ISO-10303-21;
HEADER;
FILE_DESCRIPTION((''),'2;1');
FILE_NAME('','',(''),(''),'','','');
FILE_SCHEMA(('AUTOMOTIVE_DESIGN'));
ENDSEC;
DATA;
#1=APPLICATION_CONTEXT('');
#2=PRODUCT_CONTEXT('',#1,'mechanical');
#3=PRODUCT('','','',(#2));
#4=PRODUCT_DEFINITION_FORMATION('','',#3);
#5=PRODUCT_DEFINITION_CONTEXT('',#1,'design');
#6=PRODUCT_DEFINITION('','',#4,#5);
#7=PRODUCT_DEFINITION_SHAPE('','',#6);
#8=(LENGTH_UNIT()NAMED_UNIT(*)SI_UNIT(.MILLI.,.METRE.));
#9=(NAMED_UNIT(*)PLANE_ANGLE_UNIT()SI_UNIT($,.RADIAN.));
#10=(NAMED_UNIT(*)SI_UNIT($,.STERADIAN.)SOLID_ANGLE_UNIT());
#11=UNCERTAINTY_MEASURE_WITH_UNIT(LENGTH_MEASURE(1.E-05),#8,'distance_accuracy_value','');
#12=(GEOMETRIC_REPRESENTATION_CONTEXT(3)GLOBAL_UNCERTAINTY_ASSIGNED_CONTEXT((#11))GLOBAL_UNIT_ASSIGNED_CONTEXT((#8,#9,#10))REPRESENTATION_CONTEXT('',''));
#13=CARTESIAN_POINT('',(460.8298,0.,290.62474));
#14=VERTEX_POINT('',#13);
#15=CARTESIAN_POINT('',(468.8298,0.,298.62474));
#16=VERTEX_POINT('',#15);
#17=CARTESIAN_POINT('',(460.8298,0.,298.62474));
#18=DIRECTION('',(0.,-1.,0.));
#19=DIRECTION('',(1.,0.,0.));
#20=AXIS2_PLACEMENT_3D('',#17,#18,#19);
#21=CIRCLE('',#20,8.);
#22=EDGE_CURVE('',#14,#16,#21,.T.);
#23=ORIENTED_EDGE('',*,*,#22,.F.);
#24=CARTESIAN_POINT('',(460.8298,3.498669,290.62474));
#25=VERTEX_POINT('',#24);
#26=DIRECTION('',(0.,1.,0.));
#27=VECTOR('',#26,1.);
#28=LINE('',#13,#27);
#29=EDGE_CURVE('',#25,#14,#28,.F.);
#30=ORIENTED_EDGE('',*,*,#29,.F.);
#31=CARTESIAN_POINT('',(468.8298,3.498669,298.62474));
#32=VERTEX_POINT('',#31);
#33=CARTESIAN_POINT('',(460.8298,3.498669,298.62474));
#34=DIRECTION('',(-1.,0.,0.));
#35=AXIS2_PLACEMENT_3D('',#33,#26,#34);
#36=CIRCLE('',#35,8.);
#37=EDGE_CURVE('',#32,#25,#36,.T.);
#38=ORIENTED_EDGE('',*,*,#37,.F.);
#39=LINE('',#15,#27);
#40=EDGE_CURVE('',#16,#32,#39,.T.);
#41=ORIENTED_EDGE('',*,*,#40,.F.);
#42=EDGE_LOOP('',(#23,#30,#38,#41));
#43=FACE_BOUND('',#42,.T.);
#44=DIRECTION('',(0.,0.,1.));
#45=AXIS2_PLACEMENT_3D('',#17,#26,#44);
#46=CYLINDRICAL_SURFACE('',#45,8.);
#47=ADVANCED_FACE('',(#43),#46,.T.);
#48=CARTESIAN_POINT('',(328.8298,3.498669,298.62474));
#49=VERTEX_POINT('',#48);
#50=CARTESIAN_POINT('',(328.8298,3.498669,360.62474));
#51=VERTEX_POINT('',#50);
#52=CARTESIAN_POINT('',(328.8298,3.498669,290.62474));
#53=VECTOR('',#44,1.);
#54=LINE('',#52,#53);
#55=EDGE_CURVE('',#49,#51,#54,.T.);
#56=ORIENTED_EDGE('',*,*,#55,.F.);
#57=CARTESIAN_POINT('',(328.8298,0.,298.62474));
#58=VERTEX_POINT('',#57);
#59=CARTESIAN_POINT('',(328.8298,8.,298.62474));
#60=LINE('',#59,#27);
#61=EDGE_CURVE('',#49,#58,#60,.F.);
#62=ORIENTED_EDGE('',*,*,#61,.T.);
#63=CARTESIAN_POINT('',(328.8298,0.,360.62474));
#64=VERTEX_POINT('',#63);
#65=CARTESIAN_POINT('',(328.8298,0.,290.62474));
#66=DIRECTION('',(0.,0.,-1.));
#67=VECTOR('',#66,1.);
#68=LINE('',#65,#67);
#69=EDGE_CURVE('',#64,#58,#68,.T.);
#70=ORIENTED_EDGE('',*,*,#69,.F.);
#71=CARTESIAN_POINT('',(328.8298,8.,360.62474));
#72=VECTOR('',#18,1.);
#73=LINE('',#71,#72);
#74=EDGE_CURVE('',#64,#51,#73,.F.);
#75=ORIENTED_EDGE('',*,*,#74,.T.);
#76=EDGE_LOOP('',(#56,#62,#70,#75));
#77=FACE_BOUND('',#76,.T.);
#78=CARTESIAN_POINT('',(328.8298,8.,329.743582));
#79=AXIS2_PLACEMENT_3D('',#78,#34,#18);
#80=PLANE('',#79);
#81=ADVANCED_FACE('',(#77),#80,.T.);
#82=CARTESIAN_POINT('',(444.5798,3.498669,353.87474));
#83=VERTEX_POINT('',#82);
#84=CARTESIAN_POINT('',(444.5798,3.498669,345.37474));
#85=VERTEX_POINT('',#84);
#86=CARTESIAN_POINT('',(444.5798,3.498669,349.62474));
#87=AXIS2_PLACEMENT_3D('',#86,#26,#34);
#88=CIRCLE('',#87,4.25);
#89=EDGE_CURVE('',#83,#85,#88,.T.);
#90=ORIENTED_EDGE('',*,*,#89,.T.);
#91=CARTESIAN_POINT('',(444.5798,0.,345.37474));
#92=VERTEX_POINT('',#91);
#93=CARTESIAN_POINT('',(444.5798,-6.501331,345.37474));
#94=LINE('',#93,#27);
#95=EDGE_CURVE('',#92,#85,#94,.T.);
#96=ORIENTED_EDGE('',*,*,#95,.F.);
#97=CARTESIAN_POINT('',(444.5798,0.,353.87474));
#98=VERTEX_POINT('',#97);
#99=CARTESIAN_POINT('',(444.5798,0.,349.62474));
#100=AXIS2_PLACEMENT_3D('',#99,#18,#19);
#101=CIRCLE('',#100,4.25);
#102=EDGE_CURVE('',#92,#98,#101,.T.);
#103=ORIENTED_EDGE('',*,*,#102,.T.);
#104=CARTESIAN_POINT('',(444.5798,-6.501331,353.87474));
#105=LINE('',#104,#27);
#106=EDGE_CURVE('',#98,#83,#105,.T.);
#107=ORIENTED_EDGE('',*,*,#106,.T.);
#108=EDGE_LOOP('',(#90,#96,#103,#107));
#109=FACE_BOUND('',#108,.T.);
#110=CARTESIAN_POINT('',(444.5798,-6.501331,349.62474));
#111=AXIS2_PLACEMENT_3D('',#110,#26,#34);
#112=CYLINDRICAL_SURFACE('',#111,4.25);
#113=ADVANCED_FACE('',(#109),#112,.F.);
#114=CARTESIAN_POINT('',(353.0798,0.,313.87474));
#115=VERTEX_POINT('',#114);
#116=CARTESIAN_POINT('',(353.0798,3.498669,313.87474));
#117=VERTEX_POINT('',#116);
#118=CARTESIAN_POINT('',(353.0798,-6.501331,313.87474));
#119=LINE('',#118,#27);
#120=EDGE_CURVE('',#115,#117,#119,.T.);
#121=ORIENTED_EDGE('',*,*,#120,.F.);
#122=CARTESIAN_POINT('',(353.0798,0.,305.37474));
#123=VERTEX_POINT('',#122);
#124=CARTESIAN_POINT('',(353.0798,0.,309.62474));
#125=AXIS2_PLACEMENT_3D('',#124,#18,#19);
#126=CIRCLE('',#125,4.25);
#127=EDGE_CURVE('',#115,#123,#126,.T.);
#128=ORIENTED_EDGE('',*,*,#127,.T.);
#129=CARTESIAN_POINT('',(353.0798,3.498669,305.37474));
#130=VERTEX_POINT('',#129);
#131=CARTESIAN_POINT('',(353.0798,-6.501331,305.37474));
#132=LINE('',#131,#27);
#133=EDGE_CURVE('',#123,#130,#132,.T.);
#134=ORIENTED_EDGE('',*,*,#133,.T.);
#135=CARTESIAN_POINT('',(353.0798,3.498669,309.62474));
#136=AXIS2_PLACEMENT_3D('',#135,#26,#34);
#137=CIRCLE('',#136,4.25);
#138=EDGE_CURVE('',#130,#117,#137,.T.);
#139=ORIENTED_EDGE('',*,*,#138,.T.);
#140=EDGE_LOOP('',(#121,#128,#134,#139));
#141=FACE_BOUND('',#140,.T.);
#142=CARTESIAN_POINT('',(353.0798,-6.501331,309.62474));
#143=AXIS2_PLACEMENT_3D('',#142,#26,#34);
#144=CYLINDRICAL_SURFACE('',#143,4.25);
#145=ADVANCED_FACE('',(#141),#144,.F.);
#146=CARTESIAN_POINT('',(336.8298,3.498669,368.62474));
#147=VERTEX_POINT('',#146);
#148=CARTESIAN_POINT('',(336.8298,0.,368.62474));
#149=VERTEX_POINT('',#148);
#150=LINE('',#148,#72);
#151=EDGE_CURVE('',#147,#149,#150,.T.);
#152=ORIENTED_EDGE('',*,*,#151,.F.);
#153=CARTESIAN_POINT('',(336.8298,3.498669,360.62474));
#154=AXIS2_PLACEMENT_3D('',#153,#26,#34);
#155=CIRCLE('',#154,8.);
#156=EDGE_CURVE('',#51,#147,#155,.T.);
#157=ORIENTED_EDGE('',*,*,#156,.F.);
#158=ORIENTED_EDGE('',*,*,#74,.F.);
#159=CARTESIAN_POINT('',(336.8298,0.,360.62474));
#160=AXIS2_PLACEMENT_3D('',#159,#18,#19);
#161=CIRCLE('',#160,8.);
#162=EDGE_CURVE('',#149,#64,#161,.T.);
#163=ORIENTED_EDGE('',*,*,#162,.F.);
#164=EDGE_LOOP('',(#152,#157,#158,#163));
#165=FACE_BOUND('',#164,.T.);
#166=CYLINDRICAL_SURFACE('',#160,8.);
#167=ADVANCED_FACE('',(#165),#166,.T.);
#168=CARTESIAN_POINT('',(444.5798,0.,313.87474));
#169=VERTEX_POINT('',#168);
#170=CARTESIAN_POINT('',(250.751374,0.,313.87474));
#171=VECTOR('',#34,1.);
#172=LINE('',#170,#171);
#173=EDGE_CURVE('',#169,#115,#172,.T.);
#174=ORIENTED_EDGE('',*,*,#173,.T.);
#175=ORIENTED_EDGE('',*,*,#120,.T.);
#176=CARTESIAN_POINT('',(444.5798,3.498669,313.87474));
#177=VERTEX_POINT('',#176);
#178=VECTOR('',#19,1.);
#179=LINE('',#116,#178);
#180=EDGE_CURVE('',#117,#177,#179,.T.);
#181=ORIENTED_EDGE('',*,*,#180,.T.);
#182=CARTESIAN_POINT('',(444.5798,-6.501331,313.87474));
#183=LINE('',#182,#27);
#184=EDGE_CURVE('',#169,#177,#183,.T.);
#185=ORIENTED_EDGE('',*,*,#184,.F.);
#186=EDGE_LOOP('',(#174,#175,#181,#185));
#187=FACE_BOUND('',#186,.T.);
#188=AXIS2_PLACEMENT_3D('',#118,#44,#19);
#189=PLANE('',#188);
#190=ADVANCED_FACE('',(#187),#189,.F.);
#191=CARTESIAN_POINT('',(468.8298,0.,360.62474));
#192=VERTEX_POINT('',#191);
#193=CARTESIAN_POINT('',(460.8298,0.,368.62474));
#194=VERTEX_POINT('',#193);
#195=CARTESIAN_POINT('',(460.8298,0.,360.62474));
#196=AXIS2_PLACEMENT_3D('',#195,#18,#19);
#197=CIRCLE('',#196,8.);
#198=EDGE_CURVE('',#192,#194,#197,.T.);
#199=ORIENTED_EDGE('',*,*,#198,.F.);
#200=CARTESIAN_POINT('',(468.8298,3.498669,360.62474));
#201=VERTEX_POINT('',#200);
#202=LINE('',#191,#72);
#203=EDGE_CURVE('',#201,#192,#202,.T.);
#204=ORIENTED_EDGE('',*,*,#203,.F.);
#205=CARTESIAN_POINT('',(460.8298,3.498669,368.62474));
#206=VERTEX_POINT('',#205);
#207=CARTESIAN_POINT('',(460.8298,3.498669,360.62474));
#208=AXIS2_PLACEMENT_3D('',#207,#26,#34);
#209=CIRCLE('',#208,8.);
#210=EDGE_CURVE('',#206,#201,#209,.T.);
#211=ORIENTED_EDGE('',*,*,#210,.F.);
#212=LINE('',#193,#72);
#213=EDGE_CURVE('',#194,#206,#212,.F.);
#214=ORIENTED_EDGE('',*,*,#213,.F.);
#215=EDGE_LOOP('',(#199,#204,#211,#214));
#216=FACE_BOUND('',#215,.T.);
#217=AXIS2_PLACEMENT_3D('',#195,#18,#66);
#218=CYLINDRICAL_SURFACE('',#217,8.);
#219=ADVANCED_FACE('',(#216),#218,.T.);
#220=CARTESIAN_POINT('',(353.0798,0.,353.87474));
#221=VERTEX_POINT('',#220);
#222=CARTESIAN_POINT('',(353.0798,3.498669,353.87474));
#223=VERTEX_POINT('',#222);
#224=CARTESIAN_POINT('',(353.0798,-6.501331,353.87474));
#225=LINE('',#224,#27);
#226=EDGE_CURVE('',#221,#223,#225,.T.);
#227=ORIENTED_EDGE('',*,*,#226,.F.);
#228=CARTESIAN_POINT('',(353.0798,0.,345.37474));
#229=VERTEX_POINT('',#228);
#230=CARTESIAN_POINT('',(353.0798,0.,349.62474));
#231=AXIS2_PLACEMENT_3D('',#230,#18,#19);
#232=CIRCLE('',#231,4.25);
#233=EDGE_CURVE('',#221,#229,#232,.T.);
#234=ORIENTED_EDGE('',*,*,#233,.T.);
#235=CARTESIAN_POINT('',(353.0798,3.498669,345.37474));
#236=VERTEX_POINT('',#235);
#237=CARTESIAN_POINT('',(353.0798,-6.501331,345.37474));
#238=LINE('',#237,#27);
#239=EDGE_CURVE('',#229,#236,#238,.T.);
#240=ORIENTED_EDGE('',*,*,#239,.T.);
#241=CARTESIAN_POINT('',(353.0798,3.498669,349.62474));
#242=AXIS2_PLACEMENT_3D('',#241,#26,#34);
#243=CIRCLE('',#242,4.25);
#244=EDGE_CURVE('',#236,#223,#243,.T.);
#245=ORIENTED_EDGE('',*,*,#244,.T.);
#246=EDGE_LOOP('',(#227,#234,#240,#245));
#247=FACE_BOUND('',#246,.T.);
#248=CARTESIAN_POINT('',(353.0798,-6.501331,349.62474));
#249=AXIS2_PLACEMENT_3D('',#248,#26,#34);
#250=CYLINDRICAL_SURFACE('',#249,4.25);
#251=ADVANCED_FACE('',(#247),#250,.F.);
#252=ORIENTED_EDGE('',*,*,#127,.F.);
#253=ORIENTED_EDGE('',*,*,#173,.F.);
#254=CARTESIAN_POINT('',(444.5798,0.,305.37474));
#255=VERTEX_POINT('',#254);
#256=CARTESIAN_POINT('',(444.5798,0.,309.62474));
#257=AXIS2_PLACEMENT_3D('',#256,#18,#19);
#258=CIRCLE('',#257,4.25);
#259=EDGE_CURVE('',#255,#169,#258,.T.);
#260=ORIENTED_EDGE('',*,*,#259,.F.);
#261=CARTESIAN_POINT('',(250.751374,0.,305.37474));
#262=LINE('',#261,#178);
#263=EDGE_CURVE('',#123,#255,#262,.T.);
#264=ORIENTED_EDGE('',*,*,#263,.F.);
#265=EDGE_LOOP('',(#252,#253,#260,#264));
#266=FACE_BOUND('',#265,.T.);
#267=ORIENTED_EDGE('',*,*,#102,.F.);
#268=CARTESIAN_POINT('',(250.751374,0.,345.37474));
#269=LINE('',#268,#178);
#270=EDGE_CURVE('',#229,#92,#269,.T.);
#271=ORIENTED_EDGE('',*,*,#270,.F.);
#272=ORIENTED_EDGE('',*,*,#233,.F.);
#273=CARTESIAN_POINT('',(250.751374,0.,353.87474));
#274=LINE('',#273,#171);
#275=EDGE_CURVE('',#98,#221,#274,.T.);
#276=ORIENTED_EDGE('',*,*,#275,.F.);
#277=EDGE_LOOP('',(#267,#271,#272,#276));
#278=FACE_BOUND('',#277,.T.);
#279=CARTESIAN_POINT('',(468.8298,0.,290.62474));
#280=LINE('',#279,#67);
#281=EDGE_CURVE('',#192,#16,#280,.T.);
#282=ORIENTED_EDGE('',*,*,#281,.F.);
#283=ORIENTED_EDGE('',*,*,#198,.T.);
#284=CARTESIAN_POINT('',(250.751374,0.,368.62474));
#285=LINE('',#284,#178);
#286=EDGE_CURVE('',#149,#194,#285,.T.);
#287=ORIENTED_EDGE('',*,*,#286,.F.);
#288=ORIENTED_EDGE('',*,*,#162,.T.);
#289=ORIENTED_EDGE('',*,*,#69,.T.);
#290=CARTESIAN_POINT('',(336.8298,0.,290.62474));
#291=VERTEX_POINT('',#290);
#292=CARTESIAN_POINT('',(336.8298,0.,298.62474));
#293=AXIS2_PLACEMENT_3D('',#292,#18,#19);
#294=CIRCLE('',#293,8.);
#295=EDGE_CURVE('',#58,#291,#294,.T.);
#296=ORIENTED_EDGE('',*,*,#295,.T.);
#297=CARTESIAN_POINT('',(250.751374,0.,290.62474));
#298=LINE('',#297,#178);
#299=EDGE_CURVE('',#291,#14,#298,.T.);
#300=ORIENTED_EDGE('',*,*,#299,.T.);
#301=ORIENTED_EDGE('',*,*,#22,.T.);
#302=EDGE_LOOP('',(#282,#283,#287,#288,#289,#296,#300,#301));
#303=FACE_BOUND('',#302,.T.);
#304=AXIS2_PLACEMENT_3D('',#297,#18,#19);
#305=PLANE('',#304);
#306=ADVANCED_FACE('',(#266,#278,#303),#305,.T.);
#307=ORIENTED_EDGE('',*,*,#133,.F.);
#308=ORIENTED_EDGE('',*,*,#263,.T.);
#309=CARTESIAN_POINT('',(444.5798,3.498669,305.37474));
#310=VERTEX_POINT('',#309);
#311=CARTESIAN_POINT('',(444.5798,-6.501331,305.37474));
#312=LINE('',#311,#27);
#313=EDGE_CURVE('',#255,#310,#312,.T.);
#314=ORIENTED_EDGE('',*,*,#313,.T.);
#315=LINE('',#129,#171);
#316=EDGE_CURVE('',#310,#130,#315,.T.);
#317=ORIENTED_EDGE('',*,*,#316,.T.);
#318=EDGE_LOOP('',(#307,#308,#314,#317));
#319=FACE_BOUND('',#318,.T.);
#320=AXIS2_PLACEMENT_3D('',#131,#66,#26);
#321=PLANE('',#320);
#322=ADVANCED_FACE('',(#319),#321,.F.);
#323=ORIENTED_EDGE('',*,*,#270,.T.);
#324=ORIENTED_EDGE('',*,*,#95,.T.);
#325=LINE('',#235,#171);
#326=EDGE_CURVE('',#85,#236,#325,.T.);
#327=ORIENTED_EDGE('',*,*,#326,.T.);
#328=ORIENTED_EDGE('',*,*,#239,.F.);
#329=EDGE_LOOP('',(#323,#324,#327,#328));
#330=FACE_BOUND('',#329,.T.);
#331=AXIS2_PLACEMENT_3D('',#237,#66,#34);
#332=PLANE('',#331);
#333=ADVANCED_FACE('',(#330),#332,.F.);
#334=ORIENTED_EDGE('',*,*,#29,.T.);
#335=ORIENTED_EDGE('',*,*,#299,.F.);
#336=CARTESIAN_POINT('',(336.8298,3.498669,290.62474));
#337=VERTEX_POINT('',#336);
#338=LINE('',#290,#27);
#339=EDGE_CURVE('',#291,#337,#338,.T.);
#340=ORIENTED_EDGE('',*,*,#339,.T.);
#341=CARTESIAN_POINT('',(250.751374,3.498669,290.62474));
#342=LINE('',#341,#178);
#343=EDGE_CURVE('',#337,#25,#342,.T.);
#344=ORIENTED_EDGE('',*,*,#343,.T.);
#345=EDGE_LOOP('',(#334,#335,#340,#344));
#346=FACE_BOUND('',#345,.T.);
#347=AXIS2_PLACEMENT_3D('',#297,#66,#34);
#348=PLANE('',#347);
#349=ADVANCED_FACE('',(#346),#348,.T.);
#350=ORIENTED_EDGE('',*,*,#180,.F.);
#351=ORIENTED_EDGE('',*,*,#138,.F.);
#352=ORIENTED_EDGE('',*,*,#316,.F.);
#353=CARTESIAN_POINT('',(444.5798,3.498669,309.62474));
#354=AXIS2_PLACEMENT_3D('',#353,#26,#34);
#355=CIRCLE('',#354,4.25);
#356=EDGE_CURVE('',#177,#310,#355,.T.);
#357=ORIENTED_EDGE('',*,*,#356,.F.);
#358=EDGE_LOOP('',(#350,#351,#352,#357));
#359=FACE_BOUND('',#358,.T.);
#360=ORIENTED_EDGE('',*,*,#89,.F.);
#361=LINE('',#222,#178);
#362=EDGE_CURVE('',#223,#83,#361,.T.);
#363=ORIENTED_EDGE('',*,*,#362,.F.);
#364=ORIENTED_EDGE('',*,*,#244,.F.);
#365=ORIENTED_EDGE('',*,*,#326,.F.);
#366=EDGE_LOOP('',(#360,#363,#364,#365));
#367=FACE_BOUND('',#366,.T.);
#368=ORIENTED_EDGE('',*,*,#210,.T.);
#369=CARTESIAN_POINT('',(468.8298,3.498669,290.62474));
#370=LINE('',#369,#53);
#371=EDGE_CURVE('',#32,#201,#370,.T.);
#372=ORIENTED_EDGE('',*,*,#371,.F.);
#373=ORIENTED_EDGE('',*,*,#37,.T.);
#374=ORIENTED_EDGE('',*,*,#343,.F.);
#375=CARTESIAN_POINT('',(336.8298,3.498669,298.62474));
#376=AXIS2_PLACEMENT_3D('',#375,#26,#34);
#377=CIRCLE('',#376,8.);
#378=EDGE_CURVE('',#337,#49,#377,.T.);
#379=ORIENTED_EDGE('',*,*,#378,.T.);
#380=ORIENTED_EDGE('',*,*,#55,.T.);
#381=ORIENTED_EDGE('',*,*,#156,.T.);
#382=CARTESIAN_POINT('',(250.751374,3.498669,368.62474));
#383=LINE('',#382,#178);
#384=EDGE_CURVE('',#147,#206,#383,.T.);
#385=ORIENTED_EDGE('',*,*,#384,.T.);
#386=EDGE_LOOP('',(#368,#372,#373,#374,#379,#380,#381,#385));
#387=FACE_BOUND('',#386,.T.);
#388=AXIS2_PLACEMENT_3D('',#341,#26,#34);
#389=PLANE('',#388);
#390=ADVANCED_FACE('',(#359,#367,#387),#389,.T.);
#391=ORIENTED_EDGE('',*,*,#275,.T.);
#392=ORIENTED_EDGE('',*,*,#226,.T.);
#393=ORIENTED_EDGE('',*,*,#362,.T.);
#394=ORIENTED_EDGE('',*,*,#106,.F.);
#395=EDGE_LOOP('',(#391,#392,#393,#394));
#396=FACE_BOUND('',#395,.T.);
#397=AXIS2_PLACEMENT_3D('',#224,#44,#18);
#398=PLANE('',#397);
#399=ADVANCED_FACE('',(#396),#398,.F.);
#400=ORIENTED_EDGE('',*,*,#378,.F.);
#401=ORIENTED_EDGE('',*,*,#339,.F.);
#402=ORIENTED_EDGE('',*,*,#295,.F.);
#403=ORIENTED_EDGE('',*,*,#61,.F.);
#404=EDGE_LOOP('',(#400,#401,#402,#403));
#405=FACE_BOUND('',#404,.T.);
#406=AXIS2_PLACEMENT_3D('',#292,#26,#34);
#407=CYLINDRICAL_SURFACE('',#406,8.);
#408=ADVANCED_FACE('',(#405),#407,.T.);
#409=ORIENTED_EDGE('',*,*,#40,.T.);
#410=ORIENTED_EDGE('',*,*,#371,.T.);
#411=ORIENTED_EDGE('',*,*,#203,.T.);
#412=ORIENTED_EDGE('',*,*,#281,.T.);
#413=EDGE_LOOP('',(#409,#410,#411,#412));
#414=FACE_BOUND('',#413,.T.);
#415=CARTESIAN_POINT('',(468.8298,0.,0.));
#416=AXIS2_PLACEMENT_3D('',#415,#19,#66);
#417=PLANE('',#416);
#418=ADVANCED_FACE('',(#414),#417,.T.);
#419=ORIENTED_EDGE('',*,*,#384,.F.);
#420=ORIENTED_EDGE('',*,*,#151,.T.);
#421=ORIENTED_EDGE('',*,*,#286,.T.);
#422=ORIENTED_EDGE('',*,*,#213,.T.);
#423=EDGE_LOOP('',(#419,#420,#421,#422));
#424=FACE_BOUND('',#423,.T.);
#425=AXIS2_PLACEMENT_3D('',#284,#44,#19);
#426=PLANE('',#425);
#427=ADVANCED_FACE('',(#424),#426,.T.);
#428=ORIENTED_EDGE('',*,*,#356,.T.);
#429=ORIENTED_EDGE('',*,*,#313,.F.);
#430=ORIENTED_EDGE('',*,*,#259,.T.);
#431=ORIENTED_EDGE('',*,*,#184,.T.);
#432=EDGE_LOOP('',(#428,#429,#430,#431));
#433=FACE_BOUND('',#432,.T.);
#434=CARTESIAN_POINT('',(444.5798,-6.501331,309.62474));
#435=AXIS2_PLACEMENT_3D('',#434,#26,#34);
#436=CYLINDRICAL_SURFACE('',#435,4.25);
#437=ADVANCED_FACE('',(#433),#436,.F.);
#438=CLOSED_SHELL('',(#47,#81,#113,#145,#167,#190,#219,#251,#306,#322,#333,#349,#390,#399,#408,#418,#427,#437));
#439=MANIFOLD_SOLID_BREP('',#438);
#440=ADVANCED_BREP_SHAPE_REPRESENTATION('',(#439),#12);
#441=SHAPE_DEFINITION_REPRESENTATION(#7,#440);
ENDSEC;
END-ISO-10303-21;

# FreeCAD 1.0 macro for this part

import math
import FreeCAD as App
import Part
import Sketcher

V = App.Vector


def edges_at(feature, points):
    """Names of the edges that pass closest to the given points."""
    edges = feature.Shape.Edges
    near = lambda p: min(range(len(edges)), key=lambda i: edges[i].distToShape(Part.Vertex(*p))[0])
    return sorted({f"Edge{near(p) + 1}" for p in points})


def add_polygon(sketch, points):
    """Adds a closed chain of lines whose ends are joined by coincident constraints."""
    first, n = sketch.GeometryCount, len(points)
    for a, b in zip(points, points[1:] + points[:1]):
        sketch.addGeometry(Part.LineSegment(App.Vector(*a, 0), App.Vector(*b, 0)), False)
    for i in range(n):
        sketch.addConstraint(Sketcher.Constraint("Coincident", first + i, 2, first + (i + 1) % n, 1))

doc = App.newDocument("Part")
body = doc.addObject("PartDesign::Body", "Body")

# Sketch on YZ plane
sketch1 = doc.addObject("Sketcher::SketchObject", "Sketch")
body.addObject(sketch1)
sketch1.AttachmentSupport = (doc.YZ_Plane, [""])
sketch1.MapMode = "FlatFace"
sketch1.AttachmentOffset = App.Placement(V(0, 0, 468.8298), App.Rotation())
add_polygon(sketch1, [(3.5, 368.6), (0, 368.6), (0, 290.6), (3.5, 290.6)])  # lines 0-3
sketch1.addConstraint([
    Sketcher.Constraint("Horizontal", 0),
    Sketcher.Constraint("Vertical", 1),
    Sketcher.Constraint("Horizontal", 2),
    Sketcher.Constraint("Vertical", 3),
    Sketcher.Constraint("PointOnObject", 0, 2, -2),
    Sketcher.Constraint("DistanceY", 1, 2, 1, 1, 78.0),
    Sketcher.Constraint("DistanceX", 0, 2, 0, 1, 3.498669),
    Sketcher.Constraint("DistanceY", -1, 1, 0, 2, 368.62474),
])
pad1 = doc.addObject("PartDesign::Pad", "Pad")
body.addObject(pad1)
pad1.Profile = sketch1
pad1.Length = 140
pad1.Reversed = True
doc.recompute()

fillet = doc.addObject("PartDesign::Fillet", "Fillet")
body.addObject(fillet)
fillet.Base = (pad1, edges_at(pad1, [
    (468.83, 1.749, 290.625),
    (328.83, 1.749, 290.625),
    (328.83, 1.749, 368.625),
    (468.83, 1.749, 368.625),
]))
fillet.Radius = 8

# Sketch on XZ plane
sketch2 = doc.addObject("Sketcher::SketchObject", "Sketch001")
body.addObject(sketch2)
sketch2.AttachmentSupport = (doc.XZ_Plane, [""])
sketch2.MapMode = "FlatFace"
sketch2.AttachmentOffset = App.Placement(V(0, 0, -3.498669), App.Rotation())
sketch2.addGeometry([
    Part.LineSegment(V(444.6, 345.4, 0), V(353.1, 345.4, 0)),  # 0
    Part.ArcOfCircle(Part.Circle(V(353.1, 349.6, 0), V(0, 0, 1), 4.2), math.radians(90), math.radians(270)),  # 1
    Part.LineSegment(V(353.1, 353.9, 0), V(444.6, 353.9, 0)),  # 2
    Part.ArcOfCircle(Part.Circle(V(444.6, 349.6, 0), V(0, 0, 1), 4.2), math.radians(-90), math.radians(90)),  # 3
    Part.LineSegment(V(444.6, 305.4, 0), V(353.1, 305.4, 0)),  # 4
    Part.ArcOfCircle(Part.Circle(V(353.1, 309.6, 0), V(0, 0, 1), 4.2), math.radians(90), math.radians(270)),  # 5
    Part.LineSegment(V(353.1, 313.9, 0), V(444.6, 313.9, 0)),  # 6
    Part.ArcOfCircle(Part.Circle(V(444.6, 309.6, 0), V(0, 0, 1), 4.2), math.radians(-90), math.radians(90)),  # 7
], False)
sketch2.addConstraint([
    Sketcher.Constraint("Tangent", 0, 2, 1, 2),
    Sketcher.Constraint("Tangent", 1, 1, 2, 1),
    Sketcher.Constraint("Tangent", 2, 2, 3, 2),
    Sketcher.Constraint("Tangent", 3, 1, 0, 1),
    Sketcher.Constraint("Tangent", 4, 2, 5, 2),
    Sketcher.Constraint("Tangent", 5, 1, 6, 1),
    Sketcher.Constraint("Tangent", 6, 2, 7, 2),
    Sketcher.Constraint("Tangent", 7, 1, 4, 1),
    Sketcher.Constraint("Horizontal", 0),
    Sketcher.Constraint("Horizontal", 2),
    Sketcher.Constraint("Horizontal", 4),
    Sketcher.Constraint("Horizontal", 6),
    Sketcher.Constraint("Equal", 3, 5),
    Sketcher.Constraint("Vertical", 1, 3, 5, 3),
    Sketcher.Constraint("Vertical", 3, 3, 7, 3),
    Sketcher.Constraint("Radius", 1, 4.25),
    Sketcher.Constraint("DistanceX", 0, 2, 0, 1, 91.5),
    Sketcher.Constraint("DistanceY", 5, 3, 1, 3, 40.0),
    Sketcher.Constraint("DistanceX", -1, 1, 1, 3, 353.0798),
    Sketcher.Constraint("DistanceY", -1, 1, 1, 3, 349.62474),
])
pocket1 = doc.addObject("PartDesign::Pocket", "Pocket")
body.addObject(pocket1)
pocket1.Profile = sketch2
pocket1.Length = 10
pocket1.Reversed = True

doc.recompute()
